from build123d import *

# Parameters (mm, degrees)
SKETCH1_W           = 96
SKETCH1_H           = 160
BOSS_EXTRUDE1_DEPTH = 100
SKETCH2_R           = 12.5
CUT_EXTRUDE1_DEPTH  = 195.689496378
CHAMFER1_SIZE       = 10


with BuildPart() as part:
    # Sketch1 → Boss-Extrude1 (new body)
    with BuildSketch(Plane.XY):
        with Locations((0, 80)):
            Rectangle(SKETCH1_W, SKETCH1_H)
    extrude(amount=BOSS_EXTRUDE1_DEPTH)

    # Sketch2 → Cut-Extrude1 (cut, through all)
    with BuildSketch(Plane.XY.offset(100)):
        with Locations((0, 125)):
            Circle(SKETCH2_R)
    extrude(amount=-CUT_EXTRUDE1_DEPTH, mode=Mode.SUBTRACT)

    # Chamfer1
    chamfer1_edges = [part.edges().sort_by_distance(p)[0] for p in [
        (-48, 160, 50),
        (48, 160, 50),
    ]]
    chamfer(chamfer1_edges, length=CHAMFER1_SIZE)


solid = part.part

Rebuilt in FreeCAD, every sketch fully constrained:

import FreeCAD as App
import Part
import Sketcher


def edges_at(feature, points):
    """Names of the edges that pass closest to the given points."""
    edges = feature.Shape.Edges
    near = lambda p: min(range(len(edges)), key=lambda i: edges[i].distToShape(Part.Vertex(*p))[0])
    return sorted({f"Edge{near(p) + 1}" for p in points})

doc = App.newDocument("Part")
body = doc.addObject("PartDesign::Body", "Body")

# Sketch on XY plane
sketch1 = body.newObject("Sketcher::SketchObject", "Sketch")
sketch1.AttachmentSupport = (doc.getObject("XY_Plane"), [""])
sketch1.MapMode = "FlatFace"
sketch1.addGeometry([
    Part.LineSegment(App.Vector(-48, 160, 0), App.Vector(-48, 0, 0)),
    Part.LineSegment(App.Vector(-48, 0, 0), App.Vector(48, 0, 0)),
    Part.LineSegment(App.Vector(48, 0, 0), App.Vector(48, 160, 0)),
    Part.LineSegment(App.Vector(48, 160, 0), App.Vector(-48, 160, 0)),
], False)
sketch1.addConstraint([
    Sketcher.Constraint("Coincident", 0, 2, 1, 1),
    Sketcher.Constraint("Coincident", 1, 2, 2, 1),
    Sketcher.Constraint("Coincident", 2, 2, 3, 1),
    Sketcher.Constraint("Coincident", 3, 2, 0, 1),
    Sketcher.Constraint("Vertical", 0),
    Sketcher.Constraint("Horizontal", 1),
    Sketcher.Constraint("Vertical", 2),
    Sketcher.Constraint("Horizontal", 3),
    Sketcher.Constraint("Symmetric", 0, 2, 1, 2, -1, 1),
    Sketcher.Constraint("DistanceX", 1, 1, 1, 2, 96.0),
    Sketcher.Constraint("DistanceY", 0, 2, 0, 1, 160.0),
])
pad1 = body.newObject("PartDesign::Pad", "Pad")
pad1.Profile = sketch1
pad1.Length = 100

# Sketch on XY plane
sketch2 = body.newObject("Sketcher::SketchObject", "Sketch001")
sketch2.AttachmentSupport = (doc.getObject("XY_Plane"), [""])
sketch2.MapMode = "FlatFace"
sketch2.AttachmentOffset = App.Placement(App.Vector(0, 0, 100), App.Rotation())
sketch2.addGeometry(Part.Circle(App.Vector(0, 125, 0), App.Vector(0, 0, 1), 12), False)
sketch2.addConstraint([
    Sketcher.Constraint("PointOnObject", 0, 3, -2),
    Sketcher.Constraint("Diameter", 0, 25.0),
    Sketcher.Constraint("DistanceY", -1, 1, 0, 3, 125.0),
])
pocket1 = body.newObject("PartDesign::Pocket", "Pocket")
pocket1.Profile = sketch2
pocket1.Type = "ThroughAll"
doc.recompute()

chamfer = body.newObject("PartDesign::Chamfer", "Chamfer")
chamfer.Base = (pocket1, edges_at(pocket1, [(-48, 160, 50), (48, 160, 50)]))
chamfer.Size = 10

doc.recompute()
